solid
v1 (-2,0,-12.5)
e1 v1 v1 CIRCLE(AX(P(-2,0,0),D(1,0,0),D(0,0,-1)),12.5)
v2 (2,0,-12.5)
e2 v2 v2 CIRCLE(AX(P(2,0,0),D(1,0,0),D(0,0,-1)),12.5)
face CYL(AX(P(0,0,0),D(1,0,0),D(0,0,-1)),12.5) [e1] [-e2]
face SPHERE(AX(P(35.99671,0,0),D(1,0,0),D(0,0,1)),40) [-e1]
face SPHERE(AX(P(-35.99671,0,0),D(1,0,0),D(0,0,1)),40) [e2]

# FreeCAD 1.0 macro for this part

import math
import FreeCAD as App
import Part
import Sketcher
from FreeCAD import Vector
Q = App.Units.Quantity

doc = App.newDocument("Part")
body = doc.addObject("PartDesign::Body", "Body")

# Sketch on XZ plane
sketch1 = body.newObject("Sketcher::SketchObject", "Sketch")
sketch1.AttachmentSupport = (doc.getObject("XZ_Plane"), [""])
sketch1.MapMode = "FlatFace"
sketch1.addGeometry(Part.LineSegment(Vector(-2, 12.5, 0), Vector(2, 12.5, 0)), False)
sketch1.addGeometry(Part.ArcOfCircle(Part.Circle(Vector(-36, 0, 0), Vector(0, 0, 1), 40), math.radians(0), math.radians(18.21)), False)
sketch1.addGeometry(Part.LineSegment(Vector(4, 0, 0), Vector(-4, 0, 0)), False)
sketch1.addGeometry(Part.ArcOfCircle(Part.Circle(Vector(36, 0, 0), Vector(0, 0, 1), 40), math.radians(161.79), math.radians(180)), False)
sketch1.addConstraint(Sketcher.Constraint("Coincident", 0, 2, 1, 2))
sketch1.addConstraint(Sketcher.Constraint("Coincident", 1, 1, 2, 1))
sketch1.addConstraint(Sketcher.Constraint("Coincident", 2, 2, 3, 2))
sketch1.addConstraint(Sketcher.Constraint("Coincident", 3, 1, 0, 1))
sketch1.addConstraint(Sketcher.Constraint("Horizontal", 0))
sketch1.addConstraint(Sketcher.Constraint("Horizontal", 2))
sketch1.addConstraint(Sketcher.Constraint("Equal", 1, 3))
sketch1.addConstraint(Sketcher.Constraint("Symmetric", 1, 3, 3, 3, -1, 1))
sketch1.addConstraint(Sketcher.Constraint("PointOnObject", 1, 3, -1))
sketch1.addConstraint(Sketcher.Constraint("PointOnObject", 1, 1, -1))
sketch1.addConstraint(Sketcher.Constraint("Radius", 1, Q("40 mm")))
sketch1.addConstraint(Sketcher.Constraint("DistanceX", 0, 1, 0, 2, Q("4 mm")))
sketch1.addConstraint(Sketcher.Constraint("DistanceY", -1, 1, 0, 2, Q("12.5 mm")))
revolution = body.newObject("PartDesign::Revolution", "Revolution")
revolution.Profile = sketch1
revolution.ReferenceAxis = (sketch1, ["H_Axis"])
revolution.Angle = 360

doc.recompute()
